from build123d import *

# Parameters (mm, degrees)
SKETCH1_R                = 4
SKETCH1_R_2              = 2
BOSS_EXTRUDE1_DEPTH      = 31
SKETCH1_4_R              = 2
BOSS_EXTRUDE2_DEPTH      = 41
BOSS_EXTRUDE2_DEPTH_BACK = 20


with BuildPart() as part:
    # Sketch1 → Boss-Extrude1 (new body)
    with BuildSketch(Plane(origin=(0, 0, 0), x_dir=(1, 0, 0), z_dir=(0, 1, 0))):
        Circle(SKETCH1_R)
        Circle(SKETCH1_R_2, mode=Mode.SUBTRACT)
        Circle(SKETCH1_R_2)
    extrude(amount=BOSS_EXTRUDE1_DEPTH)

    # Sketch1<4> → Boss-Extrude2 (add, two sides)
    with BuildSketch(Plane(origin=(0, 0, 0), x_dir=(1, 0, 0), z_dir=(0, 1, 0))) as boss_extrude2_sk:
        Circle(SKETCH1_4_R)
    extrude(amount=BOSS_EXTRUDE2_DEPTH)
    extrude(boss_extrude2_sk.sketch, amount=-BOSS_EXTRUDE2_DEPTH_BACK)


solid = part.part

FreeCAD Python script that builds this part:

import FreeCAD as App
import Part
import Sketcher
Q = App.Units.Quantity

doc = App.newDocument("Part")
body = doc.addObject("PartDesign::Body", "Body")

sketch1 = body.newObject("Sketcher::SketchObject", "Sketch")
sketch1.AttachmentSupport = (doc.getObject("XZ_Plane"), [""])
sketch1.MapMode = "FlatFace"
sketch1.addGeometry(Part.Circle(App.Vector(0, 0, 0), App.Vector(0, 0, 1), 4), False)
sketch1.addConstraint(Sketcher.Constraint("Coincident", 0, 3, -1, 1))
sketch1.addConstraint(Sketcher.Constraint("Diameter", 0, Q("8 mm")))
pad1 = body.newObject("PartDesign::Pad", "Pad")
pad1.Profile = sketch1
pad1.Length = 31
pad1.Reversed = True

sketch2 = body.newObject("Sketcher::SketchObject", "Sketch001")
sketch2.AttachmentSupport = (doc.getObject("XZ_Plane"), [""])
sketch2.MapMode = "FlatFace"
sketch2.addGeometry(Part.Circle(App.Vector(0, 0, 0), App.Vector(0, 0, 1), 2), False)
sketch2.addConstraint(Sketcher.Constraint("Coincident", 0, 3, -1, 1))
sketch2.addConstraint(Sketcher.Constraint("Diameter", 0, Q("4 mm")))
pad2 = body.newObject("PartDesign::Pad", "Pad001")
pad2.Profile = sketch2
pad2.Type = "TwoLengths"
pad2.Length = 41
pad2.Length2 = 20
pad2.Reversed = True

doc.recompute()
